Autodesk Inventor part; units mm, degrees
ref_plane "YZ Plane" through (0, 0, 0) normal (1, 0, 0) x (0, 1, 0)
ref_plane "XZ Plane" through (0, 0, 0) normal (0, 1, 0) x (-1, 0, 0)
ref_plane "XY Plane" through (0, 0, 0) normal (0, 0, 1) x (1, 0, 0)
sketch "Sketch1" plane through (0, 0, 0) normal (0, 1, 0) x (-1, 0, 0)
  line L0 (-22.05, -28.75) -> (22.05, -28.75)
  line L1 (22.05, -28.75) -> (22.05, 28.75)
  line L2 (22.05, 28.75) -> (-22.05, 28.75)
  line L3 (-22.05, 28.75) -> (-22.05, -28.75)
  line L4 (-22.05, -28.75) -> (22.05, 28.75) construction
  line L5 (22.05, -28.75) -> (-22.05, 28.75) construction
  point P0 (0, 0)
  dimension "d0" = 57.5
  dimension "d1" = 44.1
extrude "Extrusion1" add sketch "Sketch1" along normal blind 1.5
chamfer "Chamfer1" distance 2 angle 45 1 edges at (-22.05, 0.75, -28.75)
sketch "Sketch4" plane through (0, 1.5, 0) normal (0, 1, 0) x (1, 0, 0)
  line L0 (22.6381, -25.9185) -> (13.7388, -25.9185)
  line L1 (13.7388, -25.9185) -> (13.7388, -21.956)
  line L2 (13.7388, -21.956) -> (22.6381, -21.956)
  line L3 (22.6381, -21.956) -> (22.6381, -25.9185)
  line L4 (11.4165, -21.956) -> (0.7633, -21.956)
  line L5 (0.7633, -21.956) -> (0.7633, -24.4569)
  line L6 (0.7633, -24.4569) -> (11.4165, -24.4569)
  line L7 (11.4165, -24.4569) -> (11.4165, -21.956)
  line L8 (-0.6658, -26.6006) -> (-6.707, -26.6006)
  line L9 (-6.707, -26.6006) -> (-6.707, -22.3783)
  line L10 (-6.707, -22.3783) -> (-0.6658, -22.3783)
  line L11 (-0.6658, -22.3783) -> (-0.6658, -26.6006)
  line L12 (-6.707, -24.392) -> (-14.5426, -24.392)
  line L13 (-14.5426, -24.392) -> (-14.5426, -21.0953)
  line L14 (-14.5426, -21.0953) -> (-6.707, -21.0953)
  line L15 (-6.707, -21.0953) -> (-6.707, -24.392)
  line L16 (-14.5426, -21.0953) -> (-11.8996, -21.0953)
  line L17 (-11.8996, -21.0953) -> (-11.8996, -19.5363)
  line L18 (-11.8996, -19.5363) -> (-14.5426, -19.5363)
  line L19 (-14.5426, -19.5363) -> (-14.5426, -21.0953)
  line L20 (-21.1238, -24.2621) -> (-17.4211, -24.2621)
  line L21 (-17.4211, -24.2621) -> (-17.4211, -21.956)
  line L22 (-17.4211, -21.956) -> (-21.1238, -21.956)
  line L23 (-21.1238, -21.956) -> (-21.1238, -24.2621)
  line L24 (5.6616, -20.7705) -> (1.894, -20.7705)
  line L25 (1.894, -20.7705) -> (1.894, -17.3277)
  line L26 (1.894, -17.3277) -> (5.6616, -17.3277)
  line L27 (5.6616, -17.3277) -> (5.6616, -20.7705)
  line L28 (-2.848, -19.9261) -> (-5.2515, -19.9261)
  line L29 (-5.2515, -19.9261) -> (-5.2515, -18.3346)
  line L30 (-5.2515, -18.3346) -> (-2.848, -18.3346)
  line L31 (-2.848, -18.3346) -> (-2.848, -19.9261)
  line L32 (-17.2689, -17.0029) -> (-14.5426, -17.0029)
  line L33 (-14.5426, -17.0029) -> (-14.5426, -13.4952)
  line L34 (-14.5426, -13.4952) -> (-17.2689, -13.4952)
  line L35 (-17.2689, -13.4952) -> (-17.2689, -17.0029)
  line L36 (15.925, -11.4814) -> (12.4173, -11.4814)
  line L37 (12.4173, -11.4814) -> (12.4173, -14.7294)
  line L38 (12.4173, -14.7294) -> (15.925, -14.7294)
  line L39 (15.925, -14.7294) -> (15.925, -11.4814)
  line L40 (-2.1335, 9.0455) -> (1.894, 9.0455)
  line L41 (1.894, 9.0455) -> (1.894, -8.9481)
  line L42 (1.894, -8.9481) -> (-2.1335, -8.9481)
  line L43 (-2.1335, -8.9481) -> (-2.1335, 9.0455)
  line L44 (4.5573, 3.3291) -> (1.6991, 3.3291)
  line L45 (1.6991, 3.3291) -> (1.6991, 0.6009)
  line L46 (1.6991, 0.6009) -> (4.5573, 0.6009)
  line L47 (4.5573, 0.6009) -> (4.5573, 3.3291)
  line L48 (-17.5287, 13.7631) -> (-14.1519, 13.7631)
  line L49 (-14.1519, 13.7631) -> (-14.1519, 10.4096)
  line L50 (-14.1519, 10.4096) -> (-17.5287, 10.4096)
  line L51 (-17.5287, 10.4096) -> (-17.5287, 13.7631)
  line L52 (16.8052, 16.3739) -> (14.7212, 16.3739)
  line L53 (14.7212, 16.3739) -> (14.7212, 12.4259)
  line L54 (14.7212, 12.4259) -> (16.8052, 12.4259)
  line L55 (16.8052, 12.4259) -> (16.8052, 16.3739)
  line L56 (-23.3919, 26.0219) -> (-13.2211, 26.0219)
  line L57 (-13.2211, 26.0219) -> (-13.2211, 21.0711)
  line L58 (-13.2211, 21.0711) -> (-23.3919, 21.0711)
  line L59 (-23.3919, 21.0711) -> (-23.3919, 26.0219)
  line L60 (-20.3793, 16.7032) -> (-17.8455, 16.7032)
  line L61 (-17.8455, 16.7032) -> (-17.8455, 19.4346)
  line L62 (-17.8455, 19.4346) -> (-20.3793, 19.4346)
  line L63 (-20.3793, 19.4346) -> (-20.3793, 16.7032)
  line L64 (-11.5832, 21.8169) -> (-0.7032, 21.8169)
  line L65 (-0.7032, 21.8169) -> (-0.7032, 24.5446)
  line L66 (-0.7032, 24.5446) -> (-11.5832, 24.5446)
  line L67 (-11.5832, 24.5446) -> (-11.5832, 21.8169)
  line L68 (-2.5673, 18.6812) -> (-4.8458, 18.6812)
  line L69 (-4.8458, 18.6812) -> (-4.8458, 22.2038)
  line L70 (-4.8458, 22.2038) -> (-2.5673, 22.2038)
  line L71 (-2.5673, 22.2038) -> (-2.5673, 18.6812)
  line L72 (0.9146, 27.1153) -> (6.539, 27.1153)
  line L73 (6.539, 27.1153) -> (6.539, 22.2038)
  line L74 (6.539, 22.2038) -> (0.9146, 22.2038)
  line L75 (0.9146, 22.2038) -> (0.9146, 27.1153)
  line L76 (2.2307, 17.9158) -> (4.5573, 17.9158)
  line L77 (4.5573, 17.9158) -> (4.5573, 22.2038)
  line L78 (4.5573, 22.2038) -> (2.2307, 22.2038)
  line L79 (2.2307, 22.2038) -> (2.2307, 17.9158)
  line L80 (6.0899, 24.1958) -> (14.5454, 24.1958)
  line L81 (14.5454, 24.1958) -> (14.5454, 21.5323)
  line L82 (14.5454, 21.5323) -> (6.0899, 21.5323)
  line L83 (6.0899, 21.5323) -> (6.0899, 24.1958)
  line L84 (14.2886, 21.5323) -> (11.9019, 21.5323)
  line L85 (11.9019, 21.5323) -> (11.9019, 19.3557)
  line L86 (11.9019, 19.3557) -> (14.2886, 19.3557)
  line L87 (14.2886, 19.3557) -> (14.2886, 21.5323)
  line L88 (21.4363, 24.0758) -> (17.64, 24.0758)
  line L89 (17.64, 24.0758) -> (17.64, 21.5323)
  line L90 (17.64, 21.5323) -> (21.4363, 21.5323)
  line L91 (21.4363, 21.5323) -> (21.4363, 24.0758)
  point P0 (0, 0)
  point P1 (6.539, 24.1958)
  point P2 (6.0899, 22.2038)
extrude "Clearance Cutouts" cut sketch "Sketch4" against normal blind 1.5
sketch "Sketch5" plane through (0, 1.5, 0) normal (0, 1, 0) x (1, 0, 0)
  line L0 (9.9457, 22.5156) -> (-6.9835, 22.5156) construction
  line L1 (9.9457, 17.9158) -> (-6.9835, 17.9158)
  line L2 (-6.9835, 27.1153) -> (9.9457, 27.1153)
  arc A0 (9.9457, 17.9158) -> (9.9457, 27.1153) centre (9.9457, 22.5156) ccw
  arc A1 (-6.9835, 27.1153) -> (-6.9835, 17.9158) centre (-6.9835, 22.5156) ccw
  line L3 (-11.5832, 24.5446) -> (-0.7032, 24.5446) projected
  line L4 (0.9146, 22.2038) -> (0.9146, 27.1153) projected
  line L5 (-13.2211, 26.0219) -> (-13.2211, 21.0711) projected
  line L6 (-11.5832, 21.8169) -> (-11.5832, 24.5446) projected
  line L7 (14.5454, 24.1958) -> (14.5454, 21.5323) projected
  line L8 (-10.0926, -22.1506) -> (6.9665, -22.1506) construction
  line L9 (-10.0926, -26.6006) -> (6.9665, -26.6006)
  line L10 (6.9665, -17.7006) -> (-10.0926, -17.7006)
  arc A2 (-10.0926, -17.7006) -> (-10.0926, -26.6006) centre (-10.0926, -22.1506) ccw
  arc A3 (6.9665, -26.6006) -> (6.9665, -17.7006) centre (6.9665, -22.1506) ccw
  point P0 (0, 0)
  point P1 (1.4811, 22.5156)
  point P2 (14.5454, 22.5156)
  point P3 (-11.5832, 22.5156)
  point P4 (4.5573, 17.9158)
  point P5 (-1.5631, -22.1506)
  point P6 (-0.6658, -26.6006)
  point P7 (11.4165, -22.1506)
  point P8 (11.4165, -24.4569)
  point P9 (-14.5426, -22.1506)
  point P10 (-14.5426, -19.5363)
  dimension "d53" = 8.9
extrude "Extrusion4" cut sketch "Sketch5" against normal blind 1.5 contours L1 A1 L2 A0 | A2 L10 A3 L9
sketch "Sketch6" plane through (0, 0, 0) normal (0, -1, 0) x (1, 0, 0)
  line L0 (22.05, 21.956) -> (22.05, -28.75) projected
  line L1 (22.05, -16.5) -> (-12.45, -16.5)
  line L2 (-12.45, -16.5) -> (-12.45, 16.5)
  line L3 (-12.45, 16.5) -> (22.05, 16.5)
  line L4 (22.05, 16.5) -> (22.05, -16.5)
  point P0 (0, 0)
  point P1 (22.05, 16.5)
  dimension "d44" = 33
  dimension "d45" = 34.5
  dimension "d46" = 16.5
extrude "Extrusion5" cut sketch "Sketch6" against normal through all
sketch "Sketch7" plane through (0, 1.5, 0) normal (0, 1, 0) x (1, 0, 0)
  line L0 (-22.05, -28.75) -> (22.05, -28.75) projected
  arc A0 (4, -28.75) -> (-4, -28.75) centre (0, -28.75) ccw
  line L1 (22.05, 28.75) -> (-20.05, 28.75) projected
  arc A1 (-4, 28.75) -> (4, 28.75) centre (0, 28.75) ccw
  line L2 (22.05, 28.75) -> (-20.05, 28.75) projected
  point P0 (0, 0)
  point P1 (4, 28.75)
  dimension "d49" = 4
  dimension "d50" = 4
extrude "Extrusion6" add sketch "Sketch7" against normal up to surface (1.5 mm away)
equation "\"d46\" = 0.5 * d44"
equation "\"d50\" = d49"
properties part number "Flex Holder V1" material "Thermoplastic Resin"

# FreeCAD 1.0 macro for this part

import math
import FreeCAD as App
import Part
import Sketcher
from FreeCAD import Vector
Q = App.Units.Quantity


def edges_at(feature, points):
    """Names of the edges that pass closest to the given points."""
    edges = feature.Shape.Edges
    near = lambda p: min(range(len(edges)), key=lambda i: edges[i].distToShape(Part.Vertex(*p))[0])
    return sorted({f"Edge{near(p) + 1}" for p in points})


def add_polygon(sketch, points):
    """Adds a closed chain of lines whose ends are joined by coincident constraints."""
    first, n = sketch.GeometryCount, len(points)
    for a, b in zip(points, points[1:] + points[:1]):
        sketch.addGeometry(Part.LineSegment(App.Vector(*a, 0), App.Vector(*b, 0)), False)
    for i in range(n):
        sketch.addConstraint(Sketcher.Constraint("Coincident", first + i, 2, first + (i + 1) % n, 1))

doc = App.newDocument("Part")
params = doc.addObject("Spreadsheet::Sheet", "Params")
for row, (alias, value) in enumerate([
    ("sketch1_width", "44.1 mm"),
    ("sketch1_height", "57.5 mm"),
    ("pad1_length", "1.5 mm"),
    ("chamfer_size", "2 mm"),
    ("sketch2_width", "10.88 mm"),
    ("pocket1_length", "1.5 mm"),
    ("sketch3_radius", "4.45 mm"),
    ("pocket2_length", "1.5 mm"),
    ("sketch4_height", "33 mm"),
    ("sketch4_width", "34.5 mm"),
    ("sketch5_radius", "4 mm"),
    ("pad2_length", "1.5 mm"),
], start=1):
    params.set(f"A{row}", alias)
    params.set(f"B{row}", "=" + value)
    params.setAlias(f"B{row}", alias)

body = doc.addObject("PartDesign::Body", "Body")

# Sketch on XZ plane
sketch1 = body.newObject("Sketcher::SketchObject", "Sketch")
sketch1.AttachmentSupport = (doc.getObject("XZ_Plane"), [""])
sketch1.MapMode = "FlatFace"
add_polygon(sketch1, [(22, 29), (22, -29), (-22, -29), (-22, 29)])  # lines 0-3
sketch1.addConstraint(Sketcher.Constraint("Vertical", 0))
sketch1.addConstraint(Sketcher.Constraint("Horizontal", 1))
sketch1.addConstraint(Sketcher.Constraint("Vertical", 2))
sketch1.addConstraint(Sketcher.Constraint("Horizontal", 3))
sketch1.addConstraint(Sketcher.Constraint("Symmetric", 0, 2, 2, 2, -1, 1))
sketch1.addConstraint(Sketcher.Constraint("DistanceX", 1, 2, 1, 1, Q("44.1 mm")))
sketch1.addConstraint(Sketcher.Constraint("DistanceY", 0, 2, 0, 1, Q("57.5 mm")))
sketch1.setExpression("Constraints[9]", "Params.sketch1_width")
sketch1.setExpression("Constraints[10]", "Params.sketch1_height")
pad1 = body.newObject("PartDesign::Pad", "Pad")
pad1.Profile = sketch1
pad1.setExpression("Length", "Params.pad1_length")
pad1.Reversed = True
doc.recompute()

chamfer = body.newObject("PartDesign::Chamfer", "Chamfer")
chamfer.Base = (pad1, edges_at(pad1, [(-22.05, 0.75, -28.75)]))
chamfer.setExpression("Size", "Params.chamfer_size")

# Sketch on XZ plane
sketch2 = body.newObject("Sketcher::SketchObject", "Sketch001")
sketch2.AttachmentSupport = (doc.getObject("XZ_Plane"), [""])
sketch2.MapMode = "FlatFace"
sketch2.AttachmentOffset = App.Placement(Vector(0, 0, -1.5), App.Rotation())
add_polygon(sketch2, [(13.74, 25.92), (22.64, 25.92), (22.64, 21.96), (13.74, 21.96)])  # lines 0-3
add_polygon(sketch2, [(11.42, 24.46), (11.42, 21.96), (0.76, 21.96), (0.76, 24.46)])  # lines 4-7
add_polygon(sketch2, [(-6.71, 26.6), (-0.67, 26.6), (-0.67, 22.38), (-6.71, 22.38), (-6.71, 21.1), (-11.9, 21.1), (-11.9, 19.54), (-14.54, 19.54), (-14.54, 24.39), (-6.71, 24.39)])  # lines 8-17
add_polygon(sketch2, [(-21.12, 21.96), (-21.12, 24.26), (-17.42, 24.26), (-17.42, 21.96)])  # lines 18-21
add_polygon(sketch2, [(1.89, 20.77), (5.66, 20.77), (5.66, 17.33), (1.89, 17.33)])  # lines 22-25
add_polygon(sketch2, [(-5.25, 19.93), (-2.85, 19.93), (-2.85, 18.33), (-5.25, 18.33)])  # lines 26-29
add_polygon(sketch2, [(-17.27, 13.5), (-17.27, 17), (-14.54, 17), (-14.54, 13.5)])  # lines 30-33
add_polygon(sketch2, [(15.93, 14.73), (15.93, 11.48), (12.42, 11.48), (12.42, 14.73)])  # lines 34-37
add_polygon(sketch2, [(1.89, -9.05), (-2.13, -9.05), (-2.13, 8.95), (1.89, 8.95), (1.89, -0.6), (4.56, -0.6), (4.56, -3.33), (1.89, -3.33)])  # lines 38-45
add_polygon(sketch2, [(-14.15, -13.76), (-17.53, -13.76), (-17.53, -10.41), (-14.15, -10.41)])  # lines 46-49
add_polygon(sketch2, [(16.81, -12.43), (16.81, -16.37), (14.72, -16.37), (14.72, -12.43)])  # lines 50-53
add_polygon(sketch2, [(-13.22, -26.02), (-23.39, -26.02), (-23.39, -21.07), (-13.22, -21.07)])  # lines 54-57
add_polygon(sketch2, [(-20.38, -19.43), (-20.38, -16.7), (-17.85, -16.7), (-17.85, -19.43)])  # lines 58-61
add_polygon(sketch2, [(-11.58, -24.54), (-11.58, -21.82), (-4.85, -21.82), (-4.85, -18.68), (-2.57, -18.68), (-2.57, -21.82), (-0.7, -21.82), (-0.7, -24.54)])  # lines 62-69
add_polygon(sketch2, [(6.54, -27.12), (0.91, -27.12), (0.91, -22.2), (2.23, -22.2), (2.23, -17.92), (4.56, -17.92), (4.56, -22.2), (6.09, -22.2), (6.09, -21.53), (11.9, -21.53), (11.9, -19.36), (14.29, -19.36), (14.29, -21.53), (14.55, -21.53), (14.55, -24.2), (6.54, -24.2)])  # lines 70-85
add_polygon(sketch2, [(21.44, -21.53), (21.44, -24.08), (17.64, -24.08), (17.64, -21.53)])  # lines 86-89
sketch2.addConstraint(Sketcher.Constraint("Horizontal", 0))
sketch2.addConstraint(Sketcher.Constraint("Vertical", 1))
sketch2.addConstraint(Sketcher.Constraint("Horizontal", 2))
sketch2.addConstraint(Sketcher.Constraint("Vertical", 3))
sketch2.addConstraint(Sketcher.Constraint("Vertical", 4))
sketch2.addConstraint(Sketcher.Constraint("Horizontal", 5))
sketch2.addConstraint(Sketcher.Constraint("Vertical", 6))
sketch2.addConstraint(Sketcher.Constraint("Horizontal", 7))
sketch2.addConstraint(Sketcher.Constraint("Horizontal", 8))
sketch2.addConstraint(Sketcher.Constraint("Vertical", 9))
sketch2.addConstraint(Sketcher.Constraint("Horizontal", 10))
sketch2.addConstraint(Sketcher.Constraint("Vertical", 11))
sketch2.addConstraint(Sketcher.Constraint("Horizontal", 12))
sketch2.addConstraint(Sketcher.Constraint("Vertical", 13))
sketch2.addConstraint(Sketcher.Constraint("Horizontal", 14))
sketch2.addConstraint(Sketcher.Constraint("Vertical", 15))
sketch2.addConstraint(Sketcher.Constraint("Horizontal", 16))
sketch2.addConstraint(Sketcher.Constraint("Vertical", 17))
sketch2.addConstraint(Sketcher.Constraint("Vertical", 18))
sketch2.addConstraint(Sketcher.Constraint("Horizontal", 19))
sketch2.addConstraint(Sketcher.Constraint("Vertical", 20))
sketch2.addConstraint(Sketcher.Constraint("Horizontal", 21))
sketch2.addConstraint(Sketcher.Constraint("Horizontal", 22))
sketch2.addConstraint(Sketcher.Constraint("Vertical", 23))
sketch2.addConstraint(Sketcher.Constraint("Horizontal", 24))
sketch2.addConstraint(Sketcher.Constraint("Vertical", 25))
sketch2.addConstraint(Sketcher.Constraint("Horizontal", 26))
sketch2.addConstraint(Sketcher.Constraint("Vertical", 27))
sketch2.addConstraint(Sketcher.Constraint("Horizontal", 28))
sketch2.addConstraint(Sketcher.Constraint("Vertical", 29))
sketch2.addConstraint(Sketcher.Constraint("Vertical", 30))
sketch2.addConstraint(Sketcher.Constraint("Horizontal", 31))
sketch2.addConstraint(Sketcher.Constraint("Vertical", 32))
sketch2.addConstraint(Sketcher.Constraint("Horizontal", 33))
sketch2.addConstraint(Sketcher.Constraint("Vertical", 34))
sketch2.addConstraint(Sketcher.Constraint("Horizontal", 35))
sketch2.addConstraint(Sketcher.Constraint("Vertical", 36))
sketch2.addConstraint(Sketcher.Constraint("Horizontal", 37))
sketch2.addConstraint(Sketcher.Constraint("Horizontal", 38))
sketch2.addConstraint(Sketcher.Constraint("Vertical", 39))
sketch2.addConstraint(Sketcher.Constraint("Horizontal", 40))
sketch2.addConstraint(Sketcher.Constraint("Vertical", 41))
sketch2.addConstraint(Sketcher.Constraint("Horizontal", 42))
sketch2.addConstraint(Sketcher.Constraint("Vertical", 43))
sketch2.addConstraint(Sketcher.Constraint("Horizontal", 44))
sketch2.addConstraint(Sketcher.Constraint("Vertical", 45))
sketch2.addConstraint(Sketcher.Constraint("Horizontal", 46))
sketch2.addConstraint(Sketcher.Constraint("Vertical", 47))
sketch2.addConstraint(Sketcher.Constraint("Horizontal", 48))
sketch2.addConstraint(Sketcher.Constraint("Vertical", 49))
sketch2.addConstraint(Sketcher.Constraint("Vertical", 50))
sketch2.addConstraint(Sketcher.Constraint("Horizontal", 51))
sketch2.addConstraint(Sketcher.Constraint("Vertical", 52))
sketch2.addConstraint(Sketcher.Constraint("Horizontal", 53))
sketch2.addConstraint(Sketcher.Constraint("Horizontal", 54))
sketch2.addConstraint(Sketcher.Constraint("Vertical", 55))
sketch2.addConstraint(Sketcher.Constraint("Horizontal", 56))
sketch2.addConstraint(Sketcher.Constraint("Vertical", 57))
sketch2.addConstraint(Sketcher.Constraint("Vertical", 58))
sketch2.addConstraint(Sketcher.Constraint("Horizontal", 59))
sketch2.addConstraint(Sketcher.Constraint("Vertical", 60))
sketch2.addConstraint(Sketcher.Constraint("Horizontal", 61))
sketch2.addConstraint(Sketcher.Constraint("Vertical", 62))
sketch2.addConstraint(Sketcher.Constraint("Horizontal", 63))
sketch2.addConstraint(Sketcher.Constraint("Vertical", 64))
sketch2.addConstraint(Sketcher.Constraint("Horizontal", 65))
sketch2.addConstraint(Sketcher.Constraint("Vertical", 66))
sketch2.addConstraint(Sketcher.Constraint("Horizontal", 67))
sketch2.addConstraint(Sketcher.Constraint("Vertical", 68))
sketch2.addConstraint(Sketcher.Constraint("Horizontal", 69))
sketch2.addConstraint(Sketcher.Constraint("Horizontal", 70))
sketch2.addConstraint(Sketcher.Constraint("Vertical", 71))
sketch2.addConstraint(Sketcher.Constraint("Horizontal", 72))
sketch2.addConstraint(Sketcher.Constraint("Vertical", 73))
sketch2.addConstraint(Sketcher.Constraint("Horizontal", 74))
sketch2.addConstraint(Sketcher.Constraint("Vertical", 75))
sketch2.addConstraint(Sketcher.Constraint("Horizontal", 76))
sketch2.addConstraint(Sketcher.Constraint("Vertical", 77))
sketch2.addConstraint(Sketcher.Constraint("Horizontal", 78))
sketch2.addConstraint(Sketcher.Constraint("Vertical", 79))
sketch2.addConstraint(Sketcher.Constraint("Horizontal", 80))
sketch2.addConstraint(Sketcher.Constraint("Vertical", 81))
sketch2.addConstraint(Sketcher.Constraint("Horizontal", 82))
sketch2.addConstraint(Sketcher.Constraint("Vertical", 83))
sketch2.addConstraint(Sketcher.Constraint("Horizontal", 84))
sketch2.addConstraint(Sketcher.Constraint("Vertical", 85))
sketch2.addConstraint(Sketcher.Constraint("Vertical", 86))
sketch2.addConstraint(Sketcher.Constraint("Horizontal", 87))
sketch2.addConstraint(Sketcher.Constraint("Vertical", 88))
sketch2.addConstraint(Sketcher.Constraint("Horizontal", 89))
sketch2.addConstraint(Sketcher.Constraint("Horizontal", 2, 2, 4, 2))
sketch2.addConstraint(Sketcher.Constraint("Horizontal", 5, 2, 20, 2))
sketch2.addConstraint(Sketcher.Constraint("Horizontal", 63, 2, 66, 2))
sketch2.addConstraint(Sketcher.Constraint("Horizontal", 72, 2, 75, 2))
sketch2.addConstraint(Sketcher.Constraint("Horizontal", 78, 2, 81, 2))
sketch2.addConstraint(Sketcher.Constraint("Horizontal", 82, 2, 88, 2))
sketch2.addConstraint(Sketcher.Constraint("Vertical", 11, 2, 16, 2))
sketch2.addConstraint(Sketcher.Constraint("Vertical", 15, 2, 31, 2))
sketch2.addConstraint(Sketcher.Constraint("Vertical", 25, 2, 40, 2))
sketch2.addConstraint(Sketcher.Constraint("Vertical", 41, 2, 44, 2))
sketch2.addConstraint(Sketcher.Constraint("Vertical", 43, 2, 74, 2))
sketch2.addConstraint(Sketcher.Constraint("Equal", 37, 30))
sketch2.addConstraint(Sketcher.Constraint("Equal", 44, 83))
sketch2.addConstraint(Sketcher.Constraint("DistanceX", 69, 2, 69, 1, Q("10.88 mm")))
sketch2.addConstraint(Sketcher.Constraint("DistanceX", 14, 2, 14, 1, Q("2.643 mm")))
sketch2.addConstraint(Sketcher.Constraint("DistanceX", 51, 2, 51, 1, Q("2.084 mm")))
sketch2.addConstraint(Sketcher.Constraint("DistanceX", 67, 1, 67, 2, Q("1.864 mm")))
sketch2.addConstraint(Sketcher.Constraint("DistanceX", 72, 1, 72, 2, Q("1.316 mm")))
sketch2.addConstraint(Sketcher.Constraint("DistanceX", 78, 1, 78, 2, Q("5.812 mm")))
sketch2.addConstraint(Sketcher.Constraint("DistanceY", 4, 2, 4, 1, Q("2.501 mm")))
sketch2.addConstraint(Sketcher.Constraint("DistanceY", 11, 2, 11, 1, Q("1.283 mm")))
sketch2.addConstraint(Sketcher.Constraint("DistanceY", 13, 2, 13, 1, Q("1.559 mm")))
sketch2.addConstraint(Sketcher.Constraint("DistanceY", 18, 1, 18, 2, Q("2.306 mm")))
sketch2.addConstraint(Sketcher.Constraint("DistanceY", 34, 2, 34, 1, Q("3.248 mm")))
sketch2.addConstraint(Sketcher.Constraint("DistanceY", 41, 2, 41, 1, Q("9.549 mm")))
sketch2.addConstraint(Sketcher.Constraint("DistanceY", 50, 2, 50, 1, Q("3.948 mm")))
sketch2.addConstraint(Sketcher.Constraint("DistanceY", 73, 1, 73, 2, Q("4.288 mm")))
sketch2.addConstraint(Sketcher.Constraint("DistanceX", -1, 1, 76, 2, Q("6.09 mm")))
sketch2.addConstraint(Sketcher.Constraint("DistanceX", -1, 1, 87, 2, Q("17.64 mm")))
sketch2.addConstraint(Sketcher.Constraint("DistanceX", 0, 1, 0, 2, Q("8.8993 mm")))
sketch2.addConstraint(Sketcher.Constraint("DistanceX", 5, 2, 5, 1, Q("10.6532 mm")))
sketch2.addConstraint(Sketcher.Constraint("DistanceX", 8, 1, 8, 2, Q("6.0412 mm")))
sketch2.addConstraint(Sketcher.Constraint("DistanceX", 12, 2, 12, 1, Q("5.1926 mm")))
sketch2.addConstraint(Sketcher.Constraint("DistanceX", 19, 1, 19, 2, Q("3.7027 mm")))
sketch2.addConstraint(Sketcher.Constraint("DistanceX", 22, 1, 22, 2, Q("3.7676 mm")))
sketch2.addConstraint(Sketcher.Constraint("DistanceX", 26, 1, 26, 2, Q("2.4035 mm")))
sketch2.addConstraint(Sketcher.Constraint("DistanceX", 31, 1, 31, 2, Q("2.7263 mm")))
sketch2.addConstraint(Sketcher.Constraint("DistanceX", 35, 2, 35, 1, Q("3.5077 mm")))
sketch2.addConstraint(Sketcher.Constraint("DistanceX", 38, 2, 38, 1, Q("4.0275 mm")))
sketch2.addConstraint(Sketcher.Constraint("DistanceX", 42, 1, 42, 2, Q("2.6633 mm")))
sketch2.addConstraint(Sketcher.Constraint("DistanceX", 46, 2, 46, 1, Q("3.3768 mm")))
sketch2.addConstraint(Sketcher.Constraint("DistanceX", 54, 2, 54, 1, Q("10.1708 mm")))
sketch2.addConstraint(Sketcher.Constraint("DistanceX", 59, 1, 59, 2, Q("2.5338 mm")))
sketch2.addConstraint(Sketcher.Constraint("DistanceX", 63, 1, 63, 2, Q("6.7374 mm")))
sketch2.addConstraint(Sketcher.Constraint("DistanceX", 70, 2, 70, 1, Q("5.6244 mm")))
sketch2.addConstraint(Sketcher.Constraint("DistanceX", 74, 1, 74, 2, Q("2.3266 mm")))
sketch2.addConstraint(Sketcher.Constraint("DistanceX", 76, 1, 76, 2, Q("1.5326 mm")))
sketch2.addConstraint(Sketcher.Constraint("DistanceX", 80, 1, 80, 2, Q("2.3867 mm")))
sketch2.addConstraint(Sketcher.Constraint("DistanceX", 82, 1, 82, 2, Q("0.2568 mm")))
sketch2.addConstraint(Sketcher.Constraint("DistanceX", 87, 2, 87, 1, Q("3.7963 mm")))
sketch2.addConstraint(Sketcher.Constraint("DistanceY", 1, 2, 1, 1, Q("3.9625 mm")))
sketch2.addConstraint(Sketcher.Constraint("DistanceY", 9, 2, 9, 1, Q("4.2223 mm")))
sketch2.addConstraint(Sketcher.Constraint("DistanceY", 15, 1, 15, 2, Q("4.8557 mm")))
sketch2.addConstraint(Sketcher.Constraint("DistanceY", 23, 2, 23, 1, Q("3.4428 mm")))
sketch2.addConstraint(Sketcher.Constraint("DistanceY", 27, 2, 27, 1, Q("1.5915 mm")))
sketch2.addConstraint(Sketcher.Constraint("DistanceY", 39, 1, 39, 2, Q("17.9936 mm")))
sketch2.addConstraint(Sketcher.Constraint("DistanceY", 43, 2, 43, 1, Q("2.7282 mm")))
sketch2.addConstraint(Sketcher.Constraint("DistanceY", 47, 1, 47, 2, Q("3.3535 mm")))
sketch2.addConstraint(Sketcher.Constraint("DistanceY", 55, 1, 55, 2, Q("4.9508 mm")))
sketch2.addConstraint(Sketcher.Constraint("DistanceY", 58, 1, 58, 2, Q("2.7314 mm")))
sketch2.addConstraint(Sketcher.Constraint("DistanceY", 62, 1, 62, 2, Q("2.7277 mm")))
sketch2.addConstraint(Sketcher.Constraint("DistanceY", 64, 1, 64, 2, Q("3.1357 mm")))
sketch2.addConstraint(Sketcher.Constraint("DistanceY", 71, 1, 71, 2, Q("4.9115 mm")))
sketch2.addConstraint(Sketcher.Constraint("DistanceY", 77, 1, 77, 2, Q("0.6715 mm")))
sketch2.addConstraint(Sketcher.Constraint("DistanceY", 79, 1, 79, 2, Q("2.1766 mm")))
sketch2.addConstraint(Sketcher.Constraint("DistanceY", 86, 2, 86, 1, Q("2.5435 mm")))
sketch2.addConstraint(Sketcher.Constraint("DistanceX", -1, 1, 0, 2, Q("22.638 mm")))
sketch2.addConstraint(Sketcher.Constraint("DistanceY", -1, 1, 1, 2, Q("21.956 mm")))
sketch2.addConstraint(Sketcher.Constraint("DistanceX", 10, 2, -1, 1, Q("6.707 mm")))
sketch2.addConstraint(Sketcher.Constraint("DistanceY", -1, 1, 15, 2, Q("24.392 mm")))
sketch2.addConstraint(Sketcher.Constraint("DistanceX", 19, 2, -1, 1, Q("17.421 mm")))
sketch2.addConstraint(Sketcher.Constraint("DistanceX", 26, 2, -1, 1, Q("2.848 mm")))
sketch2.addConstraint(Sketcher.Constraint("DistanceY", -1, 1, 26, 2, Q("19.926 mm")))
sketch2.addConstraint(Sketcher.Constraint("DistanceY", -1, 1, 30, 2, Q("17.003 mm")))
sketch2.addConstraint(Sketcher.Constraint("DistanceX", -1, 1, 34, 2, Q("15.925 mm")))
sketch2.addConstraint(Sketcher.Constraint("DistanceY", -1, 1, 39, 2, Q("8.948 mm")))
sketch2.addConstraint(Sketcher.Constraint("DistanceY", 46, 2, -1, 1, Q("13.763 mm")))
sketch2.addConstraint(Sketcher.Constraint("DistanceX", 48, 2, -1, 1, Q("14.152 mm")))
sketch2.addConstraint(Sketcher.Constraint("DistanceY", 50, 2, -1, 1, Q("16.374 mm")))
sketch2.addConstraint(Sketcher.Constraint("DistanceX", 54, 2, -1, 1, Q("23.392 mm")))
sketch2.addConstraint(Sketcher.Constraint("DistanceY", 54, 2, -1, 1, Q("26.022 mm")))
sketch2.addConstraint(Sketcher.Constraint("DistanceY", 62, 2, -1, 1, Q("21.817 mm")))
sketch2.addConstraint(Sketcher.Constraint("DistanceX", -1, 1, 4, 2, Q("11.4165 mm")))
sketch2.addConstraint(Sketcher.Constraint("DistanceY", -1, 1, 22, 2, Q("20.7705 mm")))
sketch2.addConstraint(Sketcher.Constraint("DistanceY", -1, 1, 34, 2, Q("11.4814 mm")))
sketch2.addConstraint(Sketcher.Constraint("DistanceX", -1, 1, 50, 2, Q("16.8052 mm")))
sketch2.addConstraint(Sketcher.Constraint("DistanceX", 58, 2, -1, 1, Q("20.3793 mm")))
sketch2.addConstraint(Sketcher.Constraint("DistanceY", 58, 2, -1, 1, Q("16.7032 mm")))
sketch2.addConstraint(Sketcher.Constraint("DistanceX", 62, 2, -1, 1, Q("11.5832 mm")))
sketch2.addConstraint(Sketcher.Constraint("DistanceY", 70, 2, -1, 1, Q("27.1153 mm")))
sketch2.setExpression("Constraints[193]", "Params.sketch2_width")
pocket1 = body.newObject("PartDesign::Pocket", "Pocket")
pocket1.Profile = sketch2
pocket1.setExpression("Length", "Params.pocket1_length")
pocket1.Reversed = True

# Sketch on XZ plane
sketch3 = body.newObject("Sketcher::SketchObject", "Sketch002")
sketch3.AttachmentSupport = (doc.getObject("XZ_Plane"), [""])
sketch3.MapMode = "FlatFace"
sketch3.AttachmentOffset = App.Placement(Vector(0, 0, -1.5), App.Rotation())
sketch3.addGeometry(Part.LineSegment(Vector(-7, -17.9, 0), Vector(9.9, -17.9, 0)), False)
sketch3.addGeometry(Part.ArcOfCircle(Part.Circle(Vector(9.9, -22.5, 0), Vector(0, 0, 1), 4.6), math.radians(-90), math.radians(90)), False)
sketch3.addGeometry(Part.LineSegment(Vector(9.9, -27.1, 0), Vector(-7, -27.1, 0)), False)
sketch3.addGeometry(Part.ArcOfCircle(Part.Circle(Vector(-7, -22.5, 0), Vector(0, 0, 1), 4.6), math.radians(90), math.radians(270)), False)
sketch3.addGeometry(Part.ArcOfCircle(Part.Circle(Vector(-10.1, 22.2, 0), Vector(0, 0, 1), 4.4), math.radians(90), math.radians(270)), False)
sketch3.addGeometry(Part.LineSegment(Vector(-10.1, 26.6, 0), Vector(7, 26.6, 0)), False)
sketch3.addGeometry(Part.ArcOfCircle(Part.Circle(Vector(7, 22.2, 0), Vector(0, 0, 1), 4.4), math.radians(-90), math.radians(90)), False)
sketch3.addGeometry(Part.LineSegment(Vector(7, 17.7, 0), Vector(-10.1, 17.7, 0)), False)
sketch3.addConstraint(Sketcher.Constraint("Tangent", 0, 2, 1, 2))
sketch3.addConstraint(Sketcher.Constraint("Tangent", 1, 1, 2, 1))
sketch3.addConstraint(Sketcher.Constraint("Tangent", 2, 2, 3, 2))
sketch3.addConstraint(Sketcher.Constraint("Tangent", 3, 1, 0, 1))
sketch3.addConstraint(Sketcher.Constraint("Tangent", 4, 1, 5, 1))
sketch3.addConstraint(Sketcher.Constraint("Tangent", 5, 2, 6, 2))
sketch3.addConstraint(Sketcher.Constraint("Tangent", 6, 1, 7, 1))
sketch3.addConstraint(Sketcher.Constraint("Tangent", 7, 2, 4, 2))
sketch3.addConstraint(Sketcher.Constraint("Horizontal", 0))
sketch3.addConstraint(Sketcher.Constraint("Horizontal", 2))
sketch3.addConstraint(Sketcher.Constraint("Horizontal", 5))
sketch3.addConstraint(Sketcher.Constraint("Horizontal", 7))
sketch3.addConstraint(Sketcher.Constraint("Radius", 4, Q("4.45 mm")))
sketch3.addConstraint(Sketcher.Constraint("Radius", 1, Q("4.5998 mm")))
sketch3.addConstraint(Sketcher.Constraint("DistanceX", 5, 1, 5, 2, Q("17.059 mm")))
sketch3.addConstraint(Sketcher.Constraint("DistanceX", 3, 3, 6, 3, Q("13.95 mm")))
sketch3.addConstraint(Sketcher.Constraint("DistanceX", 0, 1, 0, 2, Q("16.9292 mm")))
sketch3.addConstraint(Sketcher.Constraint("DistanceY", 3, 1, -1, 1, Q("17.916 mm")))
sketch3.addConstraint(Sketcher.Constraint("DistanceY", 1, 1, 6, 3, Q("49.266 mm")))
sketch3.addConstraint(Sketcher.Constraint("DistanceX", -1, 1, 1, 3, Q("9.9457 mm")))
sketch3.setExpression("Constraints[12]", "Params.sketch3_radius")
pocket2 = body.newObject("PartDesign::Pocket", "Pocket001")
pocket2.Profile = sketch3
pocket2.setExpression("Length", "Params.pocket2_length")
pocket2.Reversed = True

# Sketch on XZ plane
sketch4 = body.newObject("Sketcher::SketchObject", "Sketch003")
sketch4.AttachmentSupport = (doc.getObject("XZ_Plane"), [""])
sketch4.MapMode = "FlatFace"
add_polygon(sketch4, [(22, -16), (22, 16), (-12, 16), (-12, -16)])  # lines 0-3
sketch4.addConstraint(Sketcher.Constraint("Vertical", 0))
sketch4.addConstraint(Sketcher.Constraint("Horizontal", 1))
sketch4.addConstraint(Sketcher.Constraint("Vertical", 2))
sketch4.addConstraint(Sketcher.Constraint("Horizontal", 3))
sketch4.addConstraint(Sketcher.Constraint("DistanceY", 0, 1, 0, 2, Q("33 mm")))
sketch4.addConstraint(Sketcher.Constraint("DistanceX", 1, 2, 1, 1, Q("34.5 mm")))
sketch4.addConstraint(Sketcher.Constraint("DistanceY", -1, 1, 0, 2, Q("16.5 mm")))
sketch4.addConstraint(Sketcher.Constraint("DistanceX", -1, 1, 0, 2, Q("22.05 mm")))
sketch4.setExpression("Constraints[8]", "Params.sketch4_height")
sketch4.setExpression("Constraints[9]", "Params.sketch4_width")
pocket3 = body.newObject("PartDesign::Pocket", "Pocket002")
pocket3.Profile = sketch4
pocket3.Type = "ThroughAll"

# Sketch on XZ plane
sketch5 = body.newObject("Sketcher::SketchObject", "Sketch004")
sketch5.AttachmentSupport = (doc.getObject("XZ_Plane"), [""])
sketch5.MapMode = "FlatFace"
sketch5.AttachmentOffset = App.Placement(Vector(0, 0, -1.5), App.Rotation())
sketch5.addGeometry(Part.ArcOfCircle(Part.Circle(Vector(0, 28.8, 0), Vector(0, 0, 1), 4), math.radians(180), math.radians(360)), False)
sketch5.addGeometry(Part.LineSegment(Vector(-4, 28.8, 0), Vector(4, 28.8, 0)), False)
sketch5.addGeometry(Part.ArcOfCircle(Part.Circle(Vector(0, -28.8, 0), Vector(0, 0, 1), 4), math.radians(0), math.radians(180)), False)
sketch5.addGeometry(Part.LineSegment(Vector(4, -28.8, 0), Vector(-4, -28.8, 0)), False)
sketch5.addConstraint(Sketcher.Constraint("Coincident", 0, 1, 1, 1))
sketch5.addConstraint(Sketcher.Constraint("Coincident", 1, 2, 0, 2))
sketch5.addConstraint(Sketcher.Constraint("Coincident", 2, 1, 3, 1))
sketch5.addConstraint(Sketcher.Constraint("Coincident", 3, 2, 2, 2))
sketch5.addConstraint(Sketcher.Constraint("Horizontal", 1))
sketch5.addConstraint(Sketcher.Constraint("Horizontal", 3))
sketch5.addConstraint(Sketcher.Constraint("Equal", 0, 2))
sketch5.addConstraint(Sketcher.Constraint("Symmetric", 0, 3, 2, 3, -1, 1))
sketch5.addConstraint(Sketcher.Constraint("Symmetric", 1, 2, 2, 1, -1))
sketch5.addConstraint(Sketcher.Constraint("Radius", 0, Q("4 mm")))
sketch5.addConstraint(Sketcher.Constraint("DistanceY", 2, 3, 0, 3, Q("57.5 mm")))
sketch5.addConstraint(Sketcher.Constraint("DistanceY", 2, 3, 0, 1, Q("57.5 mm")))
sketch5.setExpression("Constraints[9]", "Params.sketch5_radius")
pad2 = body.newObject("PartDesign::Pad", "Pad001")
pad2.Profile = sketch5
pad2.setExpression("Length", "Params.pad2_length")

doc.recompute()
